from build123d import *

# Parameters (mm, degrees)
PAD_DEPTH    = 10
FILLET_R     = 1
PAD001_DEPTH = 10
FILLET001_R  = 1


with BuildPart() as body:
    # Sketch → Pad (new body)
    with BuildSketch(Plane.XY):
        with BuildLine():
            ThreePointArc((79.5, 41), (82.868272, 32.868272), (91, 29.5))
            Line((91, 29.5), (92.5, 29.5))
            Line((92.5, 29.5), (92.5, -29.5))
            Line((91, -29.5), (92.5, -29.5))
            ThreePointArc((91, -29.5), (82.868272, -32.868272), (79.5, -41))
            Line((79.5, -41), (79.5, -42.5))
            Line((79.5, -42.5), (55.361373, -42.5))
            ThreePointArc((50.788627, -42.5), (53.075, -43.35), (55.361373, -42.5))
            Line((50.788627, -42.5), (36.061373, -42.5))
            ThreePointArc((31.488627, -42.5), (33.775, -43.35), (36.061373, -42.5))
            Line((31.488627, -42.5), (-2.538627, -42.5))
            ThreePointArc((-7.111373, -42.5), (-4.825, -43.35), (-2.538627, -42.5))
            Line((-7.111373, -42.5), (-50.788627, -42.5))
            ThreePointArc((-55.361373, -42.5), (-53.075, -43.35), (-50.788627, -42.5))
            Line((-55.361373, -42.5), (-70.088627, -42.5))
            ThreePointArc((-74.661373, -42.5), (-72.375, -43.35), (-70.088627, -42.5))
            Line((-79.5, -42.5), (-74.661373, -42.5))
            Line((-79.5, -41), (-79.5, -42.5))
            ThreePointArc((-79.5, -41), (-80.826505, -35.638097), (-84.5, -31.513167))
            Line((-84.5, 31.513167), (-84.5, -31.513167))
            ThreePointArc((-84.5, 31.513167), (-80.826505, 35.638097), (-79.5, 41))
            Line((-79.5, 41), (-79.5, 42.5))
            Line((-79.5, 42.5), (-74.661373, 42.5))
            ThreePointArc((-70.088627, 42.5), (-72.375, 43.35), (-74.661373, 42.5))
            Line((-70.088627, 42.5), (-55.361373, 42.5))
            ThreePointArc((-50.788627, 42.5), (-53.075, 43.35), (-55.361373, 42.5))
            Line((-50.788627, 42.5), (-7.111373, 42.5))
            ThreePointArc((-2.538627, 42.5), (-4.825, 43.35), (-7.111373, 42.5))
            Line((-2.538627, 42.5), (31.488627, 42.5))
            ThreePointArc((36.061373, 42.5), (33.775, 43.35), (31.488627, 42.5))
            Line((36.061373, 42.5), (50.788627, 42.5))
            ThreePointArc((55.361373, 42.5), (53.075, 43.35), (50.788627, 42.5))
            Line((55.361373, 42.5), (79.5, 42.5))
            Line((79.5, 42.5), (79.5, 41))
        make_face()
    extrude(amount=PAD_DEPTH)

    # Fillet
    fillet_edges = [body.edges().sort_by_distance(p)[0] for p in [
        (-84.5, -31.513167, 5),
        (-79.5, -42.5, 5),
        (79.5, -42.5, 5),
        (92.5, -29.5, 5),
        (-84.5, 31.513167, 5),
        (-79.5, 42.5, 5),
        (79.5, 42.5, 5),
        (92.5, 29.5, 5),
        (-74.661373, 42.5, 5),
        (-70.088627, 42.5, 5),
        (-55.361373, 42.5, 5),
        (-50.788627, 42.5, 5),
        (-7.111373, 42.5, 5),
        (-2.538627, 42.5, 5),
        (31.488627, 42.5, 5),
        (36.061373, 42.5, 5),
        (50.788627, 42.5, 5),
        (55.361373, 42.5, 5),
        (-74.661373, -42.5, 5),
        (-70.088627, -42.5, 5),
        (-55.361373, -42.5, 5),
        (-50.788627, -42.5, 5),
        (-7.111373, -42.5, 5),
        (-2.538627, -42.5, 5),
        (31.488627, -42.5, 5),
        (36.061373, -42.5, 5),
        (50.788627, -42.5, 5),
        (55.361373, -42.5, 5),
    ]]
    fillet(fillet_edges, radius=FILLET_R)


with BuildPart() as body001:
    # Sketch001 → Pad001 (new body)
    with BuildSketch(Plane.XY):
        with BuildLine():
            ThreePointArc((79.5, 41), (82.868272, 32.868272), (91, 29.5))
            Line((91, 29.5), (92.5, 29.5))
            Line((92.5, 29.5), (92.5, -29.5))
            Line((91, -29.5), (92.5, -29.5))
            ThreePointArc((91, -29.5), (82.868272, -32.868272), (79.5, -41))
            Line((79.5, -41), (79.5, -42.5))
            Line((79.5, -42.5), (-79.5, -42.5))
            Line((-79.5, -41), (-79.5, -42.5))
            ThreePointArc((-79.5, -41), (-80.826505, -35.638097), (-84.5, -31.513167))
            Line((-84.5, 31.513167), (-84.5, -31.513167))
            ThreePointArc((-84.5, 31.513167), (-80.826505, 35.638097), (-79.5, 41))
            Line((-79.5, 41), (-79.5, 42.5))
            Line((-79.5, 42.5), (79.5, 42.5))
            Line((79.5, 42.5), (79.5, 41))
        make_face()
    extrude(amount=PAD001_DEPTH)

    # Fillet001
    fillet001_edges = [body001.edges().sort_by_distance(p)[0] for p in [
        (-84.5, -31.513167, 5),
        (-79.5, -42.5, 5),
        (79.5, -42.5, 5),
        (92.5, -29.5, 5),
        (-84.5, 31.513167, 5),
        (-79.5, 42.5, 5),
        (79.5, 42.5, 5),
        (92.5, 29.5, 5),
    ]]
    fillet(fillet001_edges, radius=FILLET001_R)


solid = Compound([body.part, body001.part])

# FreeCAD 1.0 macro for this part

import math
import FreeCAD as App
import Part
import Sketcher


def edges_at(feature, points):
    """Names of the edges that pass closest to the given points."""
    edges = feature.Shape.Edges
    near = lambda p: min(range(len(edges)), key=lambda i: edges[i].distToShape(Part.Vertex(*p))[0])
    return sorted({f"Edge{near(p) + 1}" for p in points})

doc = App.newDocument("Part")
body = doc.addObject("PartDesign::Body", "Body")

# Sketch on XY plane
sketch1 = body.newObject("Sketcher::SketchObject", "Sketch")
sketch1.AttachmentSupport = (doc.getObject("XY_Plane"), [""])
sketch1.MapMode = "FlatFace"
sketch1.addGeometry([
    Part.ArcOfCircle(Part.Circle(App.Vector(91, 41, 0), App.Vector(0, 0, 1), 11.5), math.radians(180), math.radians(270)),  # 0
    Part.LineSegment(App.Vector(79.5, 41, 0), App.Vector(79.5, 42.5, 0)),  # 1
    Part.LineSegment(App.Vector(79.5, 42.5, 0), App.Vector(55.4, 42.5, 0)),  # 2
    Part.ArcOfCircle(Part.Circle(App.Vector(53.1, 39.8, 0), App.Vector(0, 0, 1), 3.5), math.radians(49), math.radians(131)),  # 3
    Part.LineSegment(App.Vector(50.8, 42.5, 0), App.Vector(36.1, 42.5, 0)),  # 4
    Part.ArcOfCircle(Part.Circle(App.Vector(33.8, 39.8, 0), App.Vector(0, 0, 1), 3.5), math.radians(49), math.radians(131)),  # 5
    Part.LineSegment(App.Vector(31.5, 42.5, 0), App.Vector(-2.5, 42.5, 0)),  # 6
    Part.ArcOfCircle(Part.Circle(App.Vector(-4.8, 39.8, 0), App.Vector(0, 0, 1), 3.5), math.radians(49), math.radians(131)),  # 7
    Part.LineSegment(App.Vector(-7.1, 42.5, 0), App.Vector(-50.8, 42.5, 0)),  # 8
    Part.ArcOfCircle(Part.Circle(App.Vector(-53.1, 39.8, 0), App.Vector(0, 0, 1), 3.5), math.radians(49), math.radians(131)),  # 9
    Part.LineSegment(App.Vector(-55.4, 42.5, 0), App.Vector(-70.1, 42.5, 0)),  # 10
    Part.ArcOfCircle(Part.Circle(App.Vector(-72.4, 39.8, 0), App.Vector(0, 0, 1), 3.5), math.radians(49), math.radians(131)),  # 11
    Part.LineSegment(App.Vector(-74.7, 42.5, 0), App.Vector(-79.5, 42.5, 0)),  # 12
    Part.LineSegment(App.Vector(-79.5, 42.5, 0), App.Vector(-79.5, 41, 0)),  # 13
    Part.ArcOfCircle(Part.Circle(App.Vector(-91, 41, 0), App.Vector(0, 0, 1), 11.5), math.radians(-56), math.radians(0)),  # 14
    Part.LineSegment(App.Vector(-84.5, 31.5, 0), App.Vector(-84.5, -31.5, 0)),  # 15
    Part.ArcOfCircle(Part.Circle(App.Vector(-91, -41, 0), App.Vector(0, 0, 1), 11.5), math.radians(0), math.radians(56)),  # 16
    Part.LineSegment(App.Vector(-79.5, -41, 0), App.Vector(-79.5, -42.5, 0)),  # 17
    Part.LineSegment(App.Vector(-79.5, -42.5, 0), App.Vector(-74.7, -42.5, 0)),  # 18
    Part.ArcOfCircle(Part.Circle(App.Vector(-72.4, -39.8, 0), App.Vector(0, 0, 1), 3.5), math.radians(-131), math.radians(-49)),  # 19
    Part.LineSegment(App.Vector(-70.1, -42.5, 0), App.Vector(-55.4, -42.5, 0)),  # 20
    Part.ArcOfCircle(Part.Circle(App.Vector(-53.1, -39.8, 0), App.Vector(0, 0, 1), 3.5), math.radians(-131), math.radians(-49)),  # 21
    Part.LineSegment(App.Vector(-50.8, -42.5, 0), App.Vector(-7.1, -42.5, 0)),  # 22
    Part.ArcOfCircle(Part.Circle(App.Vector(-4.8, -39.8, 0), App.Vector(0, 0, 1), 3.5), math.radians(-131), math.radians(-49)),  # 23
    Part.LineSegment(App.Vector(-2.5, -42.5, 0), App.Vector(31.5, -42.5, 0)),  # 24
    Part.ArcOfCircle(Part.Circle(App.Vector(33.8, -39.8, 0), App.Vector(0, 0, 1), 3.5), math.radians(-131), math.radians(-49)),  # 25
    Part.LineSegment(App.Vector(36.1, -42.5, 0), App.Vector(50.8, -42.5, 0)),  # 26
    Part.ArcOfCircle(Part.Circle(App.Vector(53.1, -39.8, 0), App.Vector(0, 0, 1), 3.5), math.radians(-131), math.radians(-49)),  # 27
    Part.LineSegment(App.Vector(55.4, -42.5, 0), App.Vector(79.5, -42.5, 0)),  # 28
    Part.LineSegment(App.Vector(79.5, -42.5, 0), App.Vector(79.5, -41, 0)),  # 29
    Part.ArcOfCircle(Part.Circle(App.Vector(91, -41, 0), App.Vector(0, 0, 1), 11.5), math.radians(90), math.radians(180)),  # 30
    Part.LineSegment(App.Vector(91, -29.5, 0), App.Vector(92.5, -29.5, 0)),  # 31
    Part.LineSegment(App.Vector(92.5, -29.5, 0), App.Vector(92.5, 29.5, 0)),  # 32
    Part.LineSegment(App.Vector(92.5, 29.5, 0), App.Vector(91, 29.5, 0)),  # 33
], False)
sketch1.addConstraint([
    Sketcher.Constraint("Tangent", 0, 1, 1, 1),
    Sketcher.Constraint("Coincident", 1, 2, 2, 1),
    Sketcher.Constraint("Coincident", 2, 2, 3, 1),
    Sketcher.Constraint("Coincident", 3, 2, 4, 1),
    Sketcher.Constraint("Coincident", 4, 2, 5, 1),
    Sketcher.Constraint("Coincident", 5, 2, 6, 1),
    Sketcher.Constraint("Coincident", 6, 2, 7, 1),
    Sketcher.Constraint("Coincident", 7, 2, 8, 1),
    Sketcher.Constraint("Coincident", 8, 2, 9, 1),
    Sketcher.Constraint("Coincident", 9, 2, 10, 1),
    Sketcher.Constraint("Coincident", 10, 2, 11, 1),
    Sketcher.Constraint("Coincident", 11, 2, 12, 1),
    Sketcher.Constraint("Coincident", 12, 2, 13, 1),
    Sketcher.Constraint("Tangent", 13, 2, 14, 2),
    Sketcher.Constraint("Coincident", 14, 1, 15, 1),
    Sketcher.Constraint("Coincident", 15, 2, 16, 2),
    Sketcher.Constraint("Tangent", 16, 1, 17, 1),
    Sketcher.Constraint("Coincident", 17, 2, 18, 1),
    Sketcher.Constraint("Coincident", 18, 2, 19, 1),
    Sketcher.Constraint("Coincident", 19, 2, 20, 1),
    Sketcher.Constraint("Coincident", 20, 2, 21, 1),
    Sketcher.Constraint("Coincident", 21, 2, 22, 1),
    Sketcher.Constraint("Coincident", 22, 2, 23, 1),
    Sketcher.Constraint("Coincident", 23, 2, 24, 1),
    Sketcher.Constraint("Coincident", 24, 2, 25, 1),
    Sketcher.Constraint("Coincident", 25, 2, 26, 1),
    Sketcher.Constraint("Coincident", 26, 2, 27, 1),
    Sketcher.Constraint("Coincident", 27, 2, 28, 1),
    Sketcher.Constraint("Coincident", 28, 2, 29, 1),
    Sketcher.Constraint("Tangent", 29, 2, 30, 2),
    Sketcher.Constraint("Tangent", 30, 1, 31, 1),
    Sketcher.Constraint("Coincident", 31, 2, 32, 1),
    Sketcher.Constraint("Coincident", 32, 2, 33, 1),
    Sketcher.Constraint("Tangent", 33, 2, 0, 2),
    Sketcher.Constraint("Vertical", 1),
    Sketcher.Constraint("Horizontal", 2),
    Sketcher.Constraint("Horizontal", 4),
    Sketcher.Constraint("Horizontal", 6),
    Sketcher.Constraint("Horizontal", 8),
    Sketcher.Constraint("Horizontal", 10),
    Sketcher.Constraint("Horizontal", 12),
    Sketcher.Constraint("Vertical", 13),
    Sketcher.Constraint("Vertical", 15),
    Sketcher.Constraint("Vertical", 17),
    Sketcher.Constraint("Horizontal", 18),
    Sketcher.Constraint("Horizontal", 20),
    Sketcher.Constraint("Horizontal", 22),
    Sketcher.Constraint("Horizontal", 24),
    Sketcher.Constraint("Horizontal", 26),
    Sketcher.Constraint("Horizontal", 28),
    Sketcher.Constraint("Vertical", 29),
    Sketcher.Constraint("Horizontal", 31),
    Sketcher.Constraint("Vertical", 32),
    Sketcher.Constraint("Horizontal", 33),
    Sketcher.Constraint("Equal", 3, 5),
    Sketcher.Constraint("Equal", 5, 7),
    Sketcher.Constraint("Equal", 7, 9),
    Sketcher.Constraint("Equal", 9, 11),
    Sketcher.Constraint("Equal", 0, 14),
    Sketcher.Constraint("Equal", 14, 16),
    Sketcher.Constraint("Equal", 11, 19),
    Sketcher.Constraint("Equal", 19, 21),
    Sketcher.Constraint("Equal", 21, 23),
    Sketcher.Constraint("Equal", 23, 25),
    Sketcher.Constraint("Equal", 25, 27),
    Sketcher.Constraint("Equal", 16, 30),
    Sketcher.Constraint("Symmetric", 0, 3, 16, 3, -1, 1),
    Sketcher.Constraint("Symmetric", 3, 3, 21, 3, -1, 1),
    Sketcher.Constraint("Symmetric", 9, 3, 27, 3, -1, 1),
    Sketcher.Constraint("Symmetric", 14, 3, 30, 3, -1, 1),
    Sketcher.Constraint("Symmetric", 3, 3, 9, 3, -2),
    Sketcher.Constraint("Symmetric", 0, 3, 14, 3, -2),
    Sketcher.Constraint("Symmetric", 11, 3, 19, 3, -1),
    Sketcher.Constraint("Symmetric", 7, 3, 23, 3, -1),
    Sketcher.Constraint("Symmetric", 5, 3, 25, 3, -1),
    Sketcher.Constraint("Horizontal", 3, 3, 5, 3),
    Sketcher.Constraint("Horizontal", 5, 3, 7, 3),
    Sketcher.Constraint("Horizontal", 9, 3, 11, 3),
    Sketcher.Constraint("Horizontal", 2, 2, 3, 2),
    Sketcher.Constraint("Horizontal", 4, 2, 5, 2),
    Sketcher.Constraint("Horizontal", 6, 2, 7, 2),
    Sketcher.Constraint("Horizontal", 8, 2, 9, 2),
    Sketcher.Constraint("Horizontal", 10, 2, 11, 2),
    Sketcher.Constraint("Horizontal", 18, 2, 19, 2),
    Sketcher.Constraint("Horizontal", 20, 2, 21, 2),
    Sketcher.Constraint("Horizontal", 22, 2, 23, 2),
    Sketcher.Constraint("Horizontal", 24, 2, 25, 2),
    Sketcher.Constraint("Horizontal", 26, 2, 27, 2),
    Sketcher.Constraint("Vertical", 11, 2, 18, 2),
    Sketcher.Constraint("Equal", 4, 10),
    Sketcher.Constraint("Equal", 33, 1),
    Sketcher.Constraint("Radius", 0, 11.5),
    Sketcher.Constraint("Radius", 3, 3.500001),
    Sketcher.Constraint("DistanceY", 32, 1, 32, 2, 59.0),
    Sketcher.Constraint("DistanceX", 31, 1, 31, 2, 1.5),
    Sketcher.Constraint("DistanceX", -1, 1, 0, 3, 91.0),
    Sketcher.Constraint("DistanceX", 14, 1, 13, 2, 5.0),
    Sketcher.Constraint("DistanceX", 5, 3, 3, 3, 19.3),
    Sketcher.Constraint("DistanceX", 7, 3, 5, 3, 38.6),
    Sketcher.Constraint("DistanceY", 19, 3, 11, 3, 79.699998),
    Sketcher.Constraint("DistanceX", 9, 3, 7, 3, 48.25),
])
pad1 = body.newObject("PartDesign::Pad", "Pad")
pad1.Profile = sketch1
pad1.Length = 10
doc.recompute()

fillet = body.newObject("PartDesign::Fillet", "Fillet")
fillet.Base = (pad1, edges_at(pad1, [
    (-84.5, -31.513, 5),
    (-79.5, -42.5, 5),
    (79.5, -42.5, 5),
    (92.5, -29.5, 5),
    (-84.5, 31.513, 5),
    (-79.5, 42.5, 5),
    (79.5, 42.5, 5),
    (92.5, 29.5, 5),
    (-74.661, 42.5, 5),
    (-70.089, 42.5, 5),
    (-55.361, 42.5, 5),
    (-50.789, 42.5, 5),
    (-7.111, 42.5, 5),
    (-2.539, 42.5, 5),
    (31.489, 42.5, 5),
    (36.061, 42.5, 5),
    (50.789, 42.5, 5),
    (55.361, 42.5, 5),
    (-74.661, -42.5, 5),
    (-70.089, -42.5, 5),
    (-55.361, -42.5, 5),
    (-50.789, -42.5, 5),
    (-7.111, -42.5, 5),
    (-2.539, -42.5, 5),
    (31.489, -42.5, 5),
    (36.061, -42.5, 5),
    (50.789, -42.5, 5),
    (55.361, -42.5, 5),
]))
fillet.Radius = 1
body2 = doc.addObject("PartDesign::Body", "Body001")

# Sketch on XY plane
sketch2 = body2.newObject("Sketcher::SketchObject", "Sketch001")
sketch2.AttachmentSupport = (doc.getObject("XY_Plane001"), [""])
sketch2.MapMode = "FlatFace"
sketch2.addGeometry([
    Part.ArcOfCircle(Part.Circle(App.Vector(91, 41, 0), App.Vector(0, 0, 1), 11.5), math.radians(180), math.radians(270)),  # 0
    Part.LineSegment(App.Vector(79.5, 41, 0), App.Vector(79.5, 42.5, 0)),  # 1
    Part.LineSegment(App.Vector(79.5, 42.5, 0), App.Vector(-79.5, 42.5, 0)),  # 2
    Part.LineSegment(App.Vector(-79.5, 42.5, 0), App.Vector(-79.5, 41, 0)),  # 3
    Part.ArcOfCircle(Part.Circle(App.Vector(-91, 41, 0), App.Vector(0, 0, 1), 11.5), math.radians(-56), math.radians(0)),  # 4
    Part.LineSegment(App.Vector(-84.5, 31.5, 0), App.Vector(-84.5, -31.5, 0)),  # 5
    Part.ArcOfCircle(Part.Circle(App.Vector(-91, -41, 0), App.Vector(0, 0, 1), 11.5), math.radians(0), math.radians(56)),  # 6
    Part.LineSegment(App.Vector(-79.5, -41, 0), App.Vector(-79.5, -42.5, 0)),  # 7
    Part.LineSegment(App.Vector(-79.5, -42.5, 0), App.Vector(79.5, -42.5, 0)),  # 8
    Part.LineSegment(App.Vector(79.5, -42.5, 0), App.Vector(79.5, -41, 0)),  # 9
    Part.ArcOfCircle(Part.Circle(App.Vector(91, -41, 0), App.Vector(0, 0, 1), 11.5), math.radians(90), math.radians(180)),  # 10
    Part.LineSegment(App.Vector(91, -29.5, 0), App.Vector(92.5, -29.5, 0)),  # 11
    Part.LineSegment(App.Vector(92.5, -29.5, 0), App.Vector(92.5, 29.5, 0)),  # 12
    Part.LineSegment(App.Vector(92.5, 29.5, 0), App.Vector(91, 29.5, 0)),  # 13
], False)
sketch2.addConstraint([
    Sketcher.Constraint("Tangent", 0, 1, 1, 1),
    Sketcher.Constraint("Coincident", 1, 2, 2, 1),
    Sketcher.Constraint("Coincident", 2, 2, 3, 1),
    Sketcher.Constraint("Tangent", 3, 2, 4, 2),
    Sketcher.Constraint("Coincident", 4, 1, 5, 1),
    Sketcher.Constraint("Coincident", 5, 2, 6, 2),
    Sketcher.Constraint("Tangent", 6, 1, 7, 1),
    Sketcher.Constraint("Coincident", 7, 2, 8, 1),
    Sketcher.Constraint("Coincident", 8, 2, 9, 1),
    Sketcher.Constraint("Tangent", 9, 2, 10, 2),
    Sketcher.Constraint("Tangent", 10, 1, 11, 1),
    Sketcher.Constraint("Coincident", 11, 2, 12, 1),
    Sketcher.Constraint("Coincident", 12, 2, 13, 1),
    Sketcher.Constraint("Tangent", 13, 2, 0, 2),
    Sketcher.Constraint("Vertical", 1),
    Sketcher.Constraint("Horizontal", 2),
    Sketcher.Constraint("Vertical", 3),
    Sketcher.Constraint("Vertical", 5),
    Sketcher.Constraint("Vertical", 7),
    Sketcher.Constraint("Horizontal", 8),
    Sketcher.Constraint("Vertical", 9),
    Sketcher.Constraint("Horizontal", 11),
    Sketcher.Constraint("Vertical", 12),
    Sketcher.Constraint("Horizontal", 13),
    Sketcher.Constraint("Equal", 0, 4),
    Sketcher.Constraint("Equal", 4, 6),
    Sketcher.Constraint("Equal", 6, 10),
    Sketcher.Constraint("Symmetric", 0, 3, 6, 3, -1, 1),
    Sketcher.Constraint("Symmetric", 4, 3, 10, 3, -1, 1),
    Sketcher.Constraint("Symmetric", 0, 3, 4, 3, -2),
    Sketcher.Constraint("Equal", 13, 1),
    Sketcher.Constraint("Equal", 3, 7),
    Sketcher.Constraint("Radius", 0, 11.5),
    Sketcher.Constraint("DistanceX", 2, 2, 2, 1, 159.0),
    Sketcher.Constraint("DistanceY", 12, 1, 12, 2, 59.0),
    Sketcher.Constraint("DistanceX", 11, 1, 11, 2, 1.5),
    Sketcher.Constraint("DistanceX", 4, 1, 3, 2, 5.0),
])
pad2 = body2.newObject("PartDesign::Pad", "Pad001")
pad2.Profile = sketch2
pad2.Length = 10
doc.recompute()

fillet2 = body2.newObject("PartDesign::Fillet", "Fillet001")
fillet2.Base = (pad2, edges_at(pad2, [
    (-84.5, -31.513, 5),
    (-79.5, -42.5, 5),
    (79.5, -42.5, 5),
    (92.5, -29.5, 5),
    (-84.5, 31.513, 5),
    (-79.5, 42.5, 5),
    (79.5, 42.5, 5),
    (92.5, 29.5, 5),
]))
fillet2.Radius = 1

doc.recompute()
